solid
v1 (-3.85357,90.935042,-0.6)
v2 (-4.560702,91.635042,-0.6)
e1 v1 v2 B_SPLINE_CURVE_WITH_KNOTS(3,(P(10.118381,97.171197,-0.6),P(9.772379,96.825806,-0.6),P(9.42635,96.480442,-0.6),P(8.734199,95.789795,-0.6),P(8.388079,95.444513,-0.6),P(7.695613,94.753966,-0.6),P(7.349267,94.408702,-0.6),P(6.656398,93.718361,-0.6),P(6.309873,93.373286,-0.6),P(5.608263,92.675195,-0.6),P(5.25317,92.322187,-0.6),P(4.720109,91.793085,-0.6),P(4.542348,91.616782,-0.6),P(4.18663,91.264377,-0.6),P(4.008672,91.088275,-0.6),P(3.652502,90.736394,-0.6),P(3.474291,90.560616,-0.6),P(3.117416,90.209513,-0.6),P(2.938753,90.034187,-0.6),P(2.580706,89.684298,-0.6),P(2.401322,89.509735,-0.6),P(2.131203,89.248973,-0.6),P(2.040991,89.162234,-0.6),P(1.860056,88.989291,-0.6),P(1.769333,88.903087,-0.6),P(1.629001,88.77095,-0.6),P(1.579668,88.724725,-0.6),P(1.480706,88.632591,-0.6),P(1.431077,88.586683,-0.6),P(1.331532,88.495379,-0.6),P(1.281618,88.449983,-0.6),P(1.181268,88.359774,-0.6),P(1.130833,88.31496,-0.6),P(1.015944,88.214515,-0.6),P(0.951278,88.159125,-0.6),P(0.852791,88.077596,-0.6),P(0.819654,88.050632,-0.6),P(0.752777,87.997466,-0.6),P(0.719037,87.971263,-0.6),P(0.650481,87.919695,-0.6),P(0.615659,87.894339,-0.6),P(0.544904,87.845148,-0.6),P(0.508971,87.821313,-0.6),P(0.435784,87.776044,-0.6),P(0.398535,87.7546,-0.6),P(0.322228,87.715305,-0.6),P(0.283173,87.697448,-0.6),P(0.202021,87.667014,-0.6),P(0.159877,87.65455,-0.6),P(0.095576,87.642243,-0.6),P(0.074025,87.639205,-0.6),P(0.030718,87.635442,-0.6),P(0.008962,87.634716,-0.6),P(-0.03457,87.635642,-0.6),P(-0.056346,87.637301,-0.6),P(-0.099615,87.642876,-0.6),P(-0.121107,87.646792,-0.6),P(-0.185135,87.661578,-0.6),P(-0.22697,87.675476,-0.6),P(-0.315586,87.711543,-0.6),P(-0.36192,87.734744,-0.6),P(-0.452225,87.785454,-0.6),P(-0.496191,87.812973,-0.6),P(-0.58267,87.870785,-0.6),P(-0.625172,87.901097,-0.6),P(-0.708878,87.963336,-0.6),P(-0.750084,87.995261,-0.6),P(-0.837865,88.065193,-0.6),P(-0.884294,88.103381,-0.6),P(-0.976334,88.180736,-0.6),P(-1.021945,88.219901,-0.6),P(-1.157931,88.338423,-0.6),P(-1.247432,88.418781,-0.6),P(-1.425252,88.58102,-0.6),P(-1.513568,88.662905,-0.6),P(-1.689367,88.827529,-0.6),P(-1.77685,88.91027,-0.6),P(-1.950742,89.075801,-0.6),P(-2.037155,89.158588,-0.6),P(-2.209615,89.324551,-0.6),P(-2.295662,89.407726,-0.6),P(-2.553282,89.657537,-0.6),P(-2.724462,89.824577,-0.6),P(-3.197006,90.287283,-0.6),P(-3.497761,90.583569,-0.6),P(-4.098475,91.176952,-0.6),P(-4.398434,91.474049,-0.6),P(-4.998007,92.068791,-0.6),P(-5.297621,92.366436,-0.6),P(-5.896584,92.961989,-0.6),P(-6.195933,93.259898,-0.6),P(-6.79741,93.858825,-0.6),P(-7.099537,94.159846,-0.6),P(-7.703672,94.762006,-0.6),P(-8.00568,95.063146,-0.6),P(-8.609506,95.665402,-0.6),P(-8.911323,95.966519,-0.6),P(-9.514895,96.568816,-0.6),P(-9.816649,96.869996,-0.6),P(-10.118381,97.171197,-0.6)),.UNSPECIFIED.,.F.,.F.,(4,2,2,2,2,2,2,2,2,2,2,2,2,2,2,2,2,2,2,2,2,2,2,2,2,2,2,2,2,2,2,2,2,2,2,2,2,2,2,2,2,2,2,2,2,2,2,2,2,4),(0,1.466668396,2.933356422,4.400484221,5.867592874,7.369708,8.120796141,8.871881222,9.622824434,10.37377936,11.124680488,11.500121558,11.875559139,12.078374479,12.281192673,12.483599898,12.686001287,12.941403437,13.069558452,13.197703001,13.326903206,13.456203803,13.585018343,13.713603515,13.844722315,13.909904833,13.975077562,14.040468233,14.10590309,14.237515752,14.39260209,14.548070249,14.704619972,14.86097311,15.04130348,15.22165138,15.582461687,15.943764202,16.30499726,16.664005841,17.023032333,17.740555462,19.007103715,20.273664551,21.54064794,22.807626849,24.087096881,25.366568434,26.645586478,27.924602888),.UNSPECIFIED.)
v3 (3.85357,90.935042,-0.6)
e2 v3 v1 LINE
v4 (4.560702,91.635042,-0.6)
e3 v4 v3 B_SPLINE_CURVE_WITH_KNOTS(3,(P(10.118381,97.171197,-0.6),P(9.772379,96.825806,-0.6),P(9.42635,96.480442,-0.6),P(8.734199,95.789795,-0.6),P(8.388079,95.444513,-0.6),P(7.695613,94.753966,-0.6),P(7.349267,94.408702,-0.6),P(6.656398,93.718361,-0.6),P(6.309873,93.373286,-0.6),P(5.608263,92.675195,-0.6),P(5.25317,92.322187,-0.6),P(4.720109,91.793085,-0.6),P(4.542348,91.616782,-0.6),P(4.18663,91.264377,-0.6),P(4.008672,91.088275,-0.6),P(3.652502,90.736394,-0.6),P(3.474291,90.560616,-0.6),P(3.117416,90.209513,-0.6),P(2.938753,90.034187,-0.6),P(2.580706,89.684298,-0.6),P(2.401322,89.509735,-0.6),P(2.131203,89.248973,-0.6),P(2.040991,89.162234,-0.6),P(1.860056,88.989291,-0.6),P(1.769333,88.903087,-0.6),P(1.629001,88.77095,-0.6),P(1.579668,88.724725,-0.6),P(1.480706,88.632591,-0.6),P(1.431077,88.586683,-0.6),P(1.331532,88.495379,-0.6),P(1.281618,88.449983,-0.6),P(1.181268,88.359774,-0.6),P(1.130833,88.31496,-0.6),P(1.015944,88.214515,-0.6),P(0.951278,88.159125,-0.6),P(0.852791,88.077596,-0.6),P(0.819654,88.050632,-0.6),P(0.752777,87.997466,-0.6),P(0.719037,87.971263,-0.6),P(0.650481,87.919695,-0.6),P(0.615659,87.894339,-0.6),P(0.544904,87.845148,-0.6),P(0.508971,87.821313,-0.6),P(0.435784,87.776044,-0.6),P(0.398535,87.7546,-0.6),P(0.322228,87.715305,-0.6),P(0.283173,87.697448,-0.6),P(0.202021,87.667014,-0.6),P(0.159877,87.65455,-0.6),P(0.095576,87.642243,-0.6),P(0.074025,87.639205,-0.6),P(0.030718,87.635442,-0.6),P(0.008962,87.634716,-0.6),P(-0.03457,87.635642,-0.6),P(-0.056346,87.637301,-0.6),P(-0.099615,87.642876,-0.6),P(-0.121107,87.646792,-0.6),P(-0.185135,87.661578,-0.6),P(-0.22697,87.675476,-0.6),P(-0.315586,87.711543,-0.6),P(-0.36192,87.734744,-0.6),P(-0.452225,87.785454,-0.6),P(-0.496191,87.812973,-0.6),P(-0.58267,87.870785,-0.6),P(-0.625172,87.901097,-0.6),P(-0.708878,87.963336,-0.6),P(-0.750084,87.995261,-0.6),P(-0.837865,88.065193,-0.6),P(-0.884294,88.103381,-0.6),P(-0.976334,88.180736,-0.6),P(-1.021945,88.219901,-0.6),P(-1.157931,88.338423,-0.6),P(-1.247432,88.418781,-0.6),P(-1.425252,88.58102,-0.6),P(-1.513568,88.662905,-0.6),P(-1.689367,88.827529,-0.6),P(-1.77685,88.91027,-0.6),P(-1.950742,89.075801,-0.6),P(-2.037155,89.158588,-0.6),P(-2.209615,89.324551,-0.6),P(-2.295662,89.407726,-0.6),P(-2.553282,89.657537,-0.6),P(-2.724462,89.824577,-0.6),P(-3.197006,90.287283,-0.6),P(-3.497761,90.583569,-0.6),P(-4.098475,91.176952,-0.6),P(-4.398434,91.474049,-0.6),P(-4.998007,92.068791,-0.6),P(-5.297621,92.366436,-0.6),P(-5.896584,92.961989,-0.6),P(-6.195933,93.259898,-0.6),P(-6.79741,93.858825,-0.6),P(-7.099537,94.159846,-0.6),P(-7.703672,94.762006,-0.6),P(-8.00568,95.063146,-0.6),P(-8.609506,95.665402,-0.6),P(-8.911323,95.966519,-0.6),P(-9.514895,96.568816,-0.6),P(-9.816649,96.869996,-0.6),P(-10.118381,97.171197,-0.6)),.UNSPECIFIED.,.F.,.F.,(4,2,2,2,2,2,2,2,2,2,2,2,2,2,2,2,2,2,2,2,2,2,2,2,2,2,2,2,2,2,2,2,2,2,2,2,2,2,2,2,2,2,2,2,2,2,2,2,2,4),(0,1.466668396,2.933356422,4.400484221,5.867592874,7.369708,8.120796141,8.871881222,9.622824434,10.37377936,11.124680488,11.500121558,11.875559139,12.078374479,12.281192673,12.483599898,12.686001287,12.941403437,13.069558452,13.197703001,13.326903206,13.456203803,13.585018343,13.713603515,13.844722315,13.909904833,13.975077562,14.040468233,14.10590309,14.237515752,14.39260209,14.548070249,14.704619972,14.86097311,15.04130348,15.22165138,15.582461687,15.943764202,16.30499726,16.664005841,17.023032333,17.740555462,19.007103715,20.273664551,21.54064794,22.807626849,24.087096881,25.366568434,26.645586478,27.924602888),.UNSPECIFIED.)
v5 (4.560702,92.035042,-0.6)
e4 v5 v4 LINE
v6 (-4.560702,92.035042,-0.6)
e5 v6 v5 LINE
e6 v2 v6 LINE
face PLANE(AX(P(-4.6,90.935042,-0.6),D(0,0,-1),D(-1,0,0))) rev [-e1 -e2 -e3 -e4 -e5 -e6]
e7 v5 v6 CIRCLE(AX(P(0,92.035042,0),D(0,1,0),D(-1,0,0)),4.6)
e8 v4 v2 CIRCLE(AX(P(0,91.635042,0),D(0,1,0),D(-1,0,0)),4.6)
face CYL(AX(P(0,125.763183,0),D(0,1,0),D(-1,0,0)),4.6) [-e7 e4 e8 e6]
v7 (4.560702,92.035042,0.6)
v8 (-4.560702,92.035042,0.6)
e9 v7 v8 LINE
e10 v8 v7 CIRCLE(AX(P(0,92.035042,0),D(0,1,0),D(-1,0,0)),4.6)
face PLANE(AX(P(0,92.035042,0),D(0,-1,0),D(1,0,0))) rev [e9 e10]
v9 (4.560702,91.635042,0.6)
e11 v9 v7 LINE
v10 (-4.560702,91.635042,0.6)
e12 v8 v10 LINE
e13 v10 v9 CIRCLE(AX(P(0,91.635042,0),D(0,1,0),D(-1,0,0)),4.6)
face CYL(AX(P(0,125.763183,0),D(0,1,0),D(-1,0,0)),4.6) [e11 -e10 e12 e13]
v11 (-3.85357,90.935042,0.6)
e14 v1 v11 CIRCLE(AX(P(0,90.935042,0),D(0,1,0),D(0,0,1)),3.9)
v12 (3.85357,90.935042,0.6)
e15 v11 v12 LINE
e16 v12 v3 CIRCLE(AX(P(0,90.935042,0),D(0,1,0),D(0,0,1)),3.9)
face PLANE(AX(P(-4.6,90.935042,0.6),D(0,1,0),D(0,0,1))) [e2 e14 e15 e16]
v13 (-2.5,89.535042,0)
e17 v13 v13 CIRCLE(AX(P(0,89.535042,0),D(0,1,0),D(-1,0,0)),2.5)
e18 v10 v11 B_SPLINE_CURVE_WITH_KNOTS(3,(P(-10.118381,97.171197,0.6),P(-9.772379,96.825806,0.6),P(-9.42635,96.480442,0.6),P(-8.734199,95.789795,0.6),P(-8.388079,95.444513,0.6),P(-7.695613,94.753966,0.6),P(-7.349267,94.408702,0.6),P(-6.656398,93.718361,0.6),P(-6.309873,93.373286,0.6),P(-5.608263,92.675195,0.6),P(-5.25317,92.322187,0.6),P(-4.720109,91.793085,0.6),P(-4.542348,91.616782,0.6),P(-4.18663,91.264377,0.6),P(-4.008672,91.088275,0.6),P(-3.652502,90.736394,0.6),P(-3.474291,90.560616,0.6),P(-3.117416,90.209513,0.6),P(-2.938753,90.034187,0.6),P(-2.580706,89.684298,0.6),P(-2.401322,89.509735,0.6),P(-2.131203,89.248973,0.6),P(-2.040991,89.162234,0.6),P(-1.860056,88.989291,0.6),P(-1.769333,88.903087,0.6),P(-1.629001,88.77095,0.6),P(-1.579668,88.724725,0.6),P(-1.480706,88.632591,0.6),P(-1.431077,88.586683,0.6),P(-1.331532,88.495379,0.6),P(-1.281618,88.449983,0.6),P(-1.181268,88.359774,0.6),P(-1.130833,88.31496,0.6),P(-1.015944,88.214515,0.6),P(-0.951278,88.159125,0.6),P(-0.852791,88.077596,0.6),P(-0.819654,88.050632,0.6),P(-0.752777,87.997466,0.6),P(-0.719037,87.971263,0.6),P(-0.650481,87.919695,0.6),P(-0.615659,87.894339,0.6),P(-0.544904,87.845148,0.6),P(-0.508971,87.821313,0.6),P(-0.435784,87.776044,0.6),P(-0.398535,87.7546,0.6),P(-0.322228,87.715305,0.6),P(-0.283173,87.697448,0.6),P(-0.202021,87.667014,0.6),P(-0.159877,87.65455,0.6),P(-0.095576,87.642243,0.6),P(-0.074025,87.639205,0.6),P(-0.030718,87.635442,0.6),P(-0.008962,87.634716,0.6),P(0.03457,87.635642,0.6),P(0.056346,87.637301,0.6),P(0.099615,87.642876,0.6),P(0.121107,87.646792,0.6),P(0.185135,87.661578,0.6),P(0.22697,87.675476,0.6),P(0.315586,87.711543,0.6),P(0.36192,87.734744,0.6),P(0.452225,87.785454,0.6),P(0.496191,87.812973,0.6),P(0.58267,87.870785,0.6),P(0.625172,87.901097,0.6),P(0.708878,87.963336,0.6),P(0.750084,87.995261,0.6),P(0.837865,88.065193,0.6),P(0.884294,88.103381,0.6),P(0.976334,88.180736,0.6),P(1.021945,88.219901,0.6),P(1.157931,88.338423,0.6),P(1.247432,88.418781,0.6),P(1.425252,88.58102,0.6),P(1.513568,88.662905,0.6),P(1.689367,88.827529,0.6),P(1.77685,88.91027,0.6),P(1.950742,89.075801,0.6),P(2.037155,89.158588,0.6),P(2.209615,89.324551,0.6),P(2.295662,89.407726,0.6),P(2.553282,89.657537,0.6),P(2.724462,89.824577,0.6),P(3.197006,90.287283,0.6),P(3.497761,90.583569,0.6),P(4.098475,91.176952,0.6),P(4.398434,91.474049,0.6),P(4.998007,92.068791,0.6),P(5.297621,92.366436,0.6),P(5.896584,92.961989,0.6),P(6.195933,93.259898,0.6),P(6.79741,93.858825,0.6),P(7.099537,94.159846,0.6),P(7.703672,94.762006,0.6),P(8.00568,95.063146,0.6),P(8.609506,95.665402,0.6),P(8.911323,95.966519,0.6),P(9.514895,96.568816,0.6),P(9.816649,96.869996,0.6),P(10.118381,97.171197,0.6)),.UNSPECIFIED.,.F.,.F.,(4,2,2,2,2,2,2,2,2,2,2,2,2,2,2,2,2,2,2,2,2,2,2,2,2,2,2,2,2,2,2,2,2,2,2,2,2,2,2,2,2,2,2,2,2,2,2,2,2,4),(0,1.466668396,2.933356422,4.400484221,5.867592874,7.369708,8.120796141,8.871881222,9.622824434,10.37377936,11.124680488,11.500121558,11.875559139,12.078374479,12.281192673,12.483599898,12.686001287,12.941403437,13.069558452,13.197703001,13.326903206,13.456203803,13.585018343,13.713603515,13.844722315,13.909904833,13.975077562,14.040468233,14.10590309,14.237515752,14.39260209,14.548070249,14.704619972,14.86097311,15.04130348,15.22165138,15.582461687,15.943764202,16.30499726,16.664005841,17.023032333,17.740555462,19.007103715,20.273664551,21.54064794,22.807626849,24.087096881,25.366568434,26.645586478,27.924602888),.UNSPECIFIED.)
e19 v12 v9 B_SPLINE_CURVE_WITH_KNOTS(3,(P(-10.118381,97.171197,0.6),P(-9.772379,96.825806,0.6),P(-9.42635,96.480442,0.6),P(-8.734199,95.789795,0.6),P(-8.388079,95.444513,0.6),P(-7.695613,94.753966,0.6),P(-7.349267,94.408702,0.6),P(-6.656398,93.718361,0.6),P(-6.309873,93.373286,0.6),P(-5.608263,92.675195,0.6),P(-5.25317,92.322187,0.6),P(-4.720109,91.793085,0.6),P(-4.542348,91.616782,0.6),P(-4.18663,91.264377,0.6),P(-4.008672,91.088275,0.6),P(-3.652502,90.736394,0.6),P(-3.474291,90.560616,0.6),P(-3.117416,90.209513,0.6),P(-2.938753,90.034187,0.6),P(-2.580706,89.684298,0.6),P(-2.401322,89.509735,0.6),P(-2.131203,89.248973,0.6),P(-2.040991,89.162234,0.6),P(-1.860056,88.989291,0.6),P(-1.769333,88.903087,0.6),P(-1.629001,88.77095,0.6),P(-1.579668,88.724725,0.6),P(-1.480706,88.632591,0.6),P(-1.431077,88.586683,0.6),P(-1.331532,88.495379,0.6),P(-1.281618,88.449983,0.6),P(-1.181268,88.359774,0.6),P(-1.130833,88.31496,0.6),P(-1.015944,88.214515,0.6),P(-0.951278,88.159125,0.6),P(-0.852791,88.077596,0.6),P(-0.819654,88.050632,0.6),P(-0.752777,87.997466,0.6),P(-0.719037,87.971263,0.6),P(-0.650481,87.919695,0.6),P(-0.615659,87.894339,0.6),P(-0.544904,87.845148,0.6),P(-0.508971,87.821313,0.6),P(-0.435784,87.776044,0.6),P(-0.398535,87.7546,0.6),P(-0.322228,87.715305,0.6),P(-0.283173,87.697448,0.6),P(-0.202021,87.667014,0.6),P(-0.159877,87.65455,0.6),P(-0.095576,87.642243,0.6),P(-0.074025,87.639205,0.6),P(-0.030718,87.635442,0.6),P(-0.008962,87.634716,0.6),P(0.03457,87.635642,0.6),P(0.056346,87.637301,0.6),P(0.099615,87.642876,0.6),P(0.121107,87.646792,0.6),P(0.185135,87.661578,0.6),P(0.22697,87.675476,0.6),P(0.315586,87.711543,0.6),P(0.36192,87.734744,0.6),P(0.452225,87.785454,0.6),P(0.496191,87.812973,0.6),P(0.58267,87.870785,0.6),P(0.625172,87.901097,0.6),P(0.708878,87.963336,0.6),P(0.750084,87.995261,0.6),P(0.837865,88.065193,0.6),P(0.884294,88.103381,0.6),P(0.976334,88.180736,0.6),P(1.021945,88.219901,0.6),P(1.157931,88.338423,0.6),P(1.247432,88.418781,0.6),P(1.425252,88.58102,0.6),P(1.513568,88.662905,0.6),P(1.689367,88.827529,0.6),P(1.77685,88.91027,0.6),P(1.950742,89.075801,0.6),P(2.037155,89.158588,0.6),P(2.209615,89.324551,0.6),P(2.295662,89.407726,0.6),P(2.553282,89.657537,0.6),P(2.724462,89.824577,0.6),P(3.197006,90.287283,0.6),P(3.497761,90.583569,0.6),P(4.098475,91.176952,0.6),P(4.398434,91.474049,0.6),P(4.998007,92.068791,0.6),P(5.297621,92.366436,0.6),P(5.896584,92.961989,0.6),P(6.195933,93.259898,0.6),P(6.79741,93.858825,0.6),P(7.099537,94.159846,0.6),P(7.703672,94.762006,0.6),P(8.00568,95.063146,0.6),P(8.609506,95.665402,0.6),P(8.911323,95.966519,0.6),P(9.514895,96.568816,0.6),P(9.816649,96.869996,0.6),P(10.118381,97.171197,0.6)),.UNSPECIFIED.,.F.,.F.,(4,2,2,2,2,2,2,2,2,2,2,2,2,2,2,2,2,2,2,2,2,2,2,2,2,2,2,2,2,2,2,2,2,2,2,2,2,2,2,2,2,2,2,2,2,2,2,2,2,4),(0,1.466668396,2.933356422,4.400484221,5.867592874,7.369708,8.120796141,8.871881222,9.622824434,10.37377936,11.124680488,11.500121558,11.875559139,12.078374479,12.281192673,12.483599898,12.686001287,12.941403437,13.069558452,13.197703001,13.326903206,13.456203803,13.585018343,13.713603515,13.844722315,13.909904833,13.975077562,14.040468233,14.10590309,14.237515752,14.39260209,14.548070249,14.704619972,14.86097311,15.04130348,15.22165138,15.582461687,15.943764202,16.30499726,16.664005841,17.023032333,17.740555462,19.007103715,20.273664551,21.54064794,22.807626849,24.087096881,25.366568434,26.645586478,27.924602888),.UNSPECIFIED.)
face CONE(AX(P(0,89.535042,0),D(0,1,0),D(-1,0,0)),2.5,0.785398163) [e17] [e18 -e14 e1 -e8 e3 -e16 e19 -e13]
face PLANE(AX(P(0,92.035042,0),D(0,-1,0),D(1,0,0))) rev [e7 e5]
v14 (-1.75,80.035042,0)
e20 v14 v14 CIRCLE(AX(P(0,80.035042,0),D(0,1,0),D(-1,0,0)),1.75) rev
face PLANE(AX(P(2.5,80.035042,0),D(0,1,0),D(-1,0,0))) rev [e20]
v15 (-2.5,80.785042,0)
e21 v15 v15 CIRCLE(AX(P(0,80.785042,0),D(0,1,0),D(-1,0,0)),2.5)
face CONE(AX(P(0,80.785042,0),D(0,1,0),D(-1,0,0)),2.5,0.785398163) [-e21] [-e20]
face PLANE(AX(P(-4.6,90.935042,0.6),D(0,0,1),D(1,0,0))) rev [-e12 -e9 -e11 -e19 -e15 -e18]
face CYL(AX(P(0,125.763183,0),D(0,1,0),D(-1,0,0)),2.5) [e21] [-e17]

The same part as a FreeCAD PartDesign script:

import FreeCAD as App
import Part
import Sketcher
Q = App.Units.Quantity


def edges_at(feature, points):
    """Names of the edges that pass closest to the given points."""
    edges = feature.Shape.Edges
    near = lambda p: min(range(len(edges)), key=lambda i: edges[i].distToShape(Part.Vertex(*p))[0])
    return sorted({f"Edge{near(p) + 1}" for p in points})


def add_polygon(sketch, points):
    """Adds a closed chain of lines whose ends are joined by coincident constraints."""
    first, n = sketch.GeometryCount, len(points)
    for a, b in zip(points, points[1:] + points[:1]):
        sketch.addGeometry(Part.LineSegment(App.Vector(*a, 0), App.Vector(*b, 0)), False)
    for i in range(n):
        sketch.addConstraint(Sketcher.Constraint("Coincident", first + i, 2, first + (i + 1) % n, 1))

doc = App.newDocument("Part")
body = doc.addObject("PartDesign::Body", "Body")

# Sketch on XY plane
sketch1 = body.newObject("Sketcher::SketchObject", "Sketch")
sketch1.AttachmentSupport = (doc.getObject("XY_Plane"), [""])
sketch1.MapMode = "FlatFace"
add_polygon(sketch1, [(0, 92.04), (0, 80.04), (2.5, 80.04), (2.5, 89.54), (4.6, 91.64), (4.6, 92.04)])  # lines 0-5
sketch1.addConstraint([
    Sketcher.Constraint("Vertical", 0),
    Sketcher.Constraint("Horizontal", 1),
    Sketcher.Constraint("Vertical", 2),
    Sketcher.Constraint("Vertical", 4),
    Sketcher.Constraint("Horizontal", 5),
    Sketcher.Constraint("PointOnObject", 0, 2, -2),
    Sketcher.Constraint("DistanceY", 0, 2, 0, 1, 12.0),
    Sketcher.Constraint("Angle", 3, Q("45 deg")),
    Sketcher.Constraint("DistanceX", 1, 1, 1, 2, 2.5),
    Sketcher.Constraint("DistanceX", 5, 2, 5, 1, 4.6),
    Sketcher.Constraint("DistanceY", 2, 1, 2, 2, 9.5),
    Sketcher.Constraint("DistanceY", -1, 1, 0, 2, 80.035042),
])
revolution = body.newObject("PartDesign::Revolution", "Revolution")
revolution.Profile = sketch1
revolution.ReferenceAxis = (sketch1, ["V_Axis"])
revolution.Angle = 360

# Sketch on XZ plane
sketch2 = body.newObject("Sketcher::SketchObject", "Sketch001")
sketch2.AttachmentSupport = (doc.getObject("XZ_Plane"), [""])
sketch2.MapMode = "FlatFace"
sketch2.AttachmentOffset = App.Placement(App.Vector(0, 0, -92.035042), App.Rotation())
add_polygon(sketch2, [(4.6, 0.6), (4.6, -0.6), (-4.6, -0.6), (-4.6, 0.6)])  # lines 0-3
sketch2.addConstraint([
    Sketcher.Constraint("Vertical", 0),
    Sketcher.Constraint("Horizontal", 1),
    Sketcher.Constraint("Vertical", 2),
    Sketcher.Constraint("Horizontal", 3),
    Sketcher.Constraint("Symmetric", 0, 2, 2, 2, -1, 1),
    Sketcher.Constraint("DistanceX", 1, 2, 1, 1, 9.2),
    Sketcher.Constraint("DistanceY", 0, 2, 0, 1, 1.2),
])
pocket1 = body.newObject("PartDesign::Pocket", "Pocket")
pocket1.Profile = sketch2
pocket1.Length = 1.1
pocket1.Reversed = True
doc.recompute()

chamfer = body.newObject("PartDesign::Chamfer", "Chamfer")
chamfer.Base = (pocket1, edges_at(pocket1, [(2.5, 80.035, 0)]))
chamfer.Size = 0.75

doc.recompute()
